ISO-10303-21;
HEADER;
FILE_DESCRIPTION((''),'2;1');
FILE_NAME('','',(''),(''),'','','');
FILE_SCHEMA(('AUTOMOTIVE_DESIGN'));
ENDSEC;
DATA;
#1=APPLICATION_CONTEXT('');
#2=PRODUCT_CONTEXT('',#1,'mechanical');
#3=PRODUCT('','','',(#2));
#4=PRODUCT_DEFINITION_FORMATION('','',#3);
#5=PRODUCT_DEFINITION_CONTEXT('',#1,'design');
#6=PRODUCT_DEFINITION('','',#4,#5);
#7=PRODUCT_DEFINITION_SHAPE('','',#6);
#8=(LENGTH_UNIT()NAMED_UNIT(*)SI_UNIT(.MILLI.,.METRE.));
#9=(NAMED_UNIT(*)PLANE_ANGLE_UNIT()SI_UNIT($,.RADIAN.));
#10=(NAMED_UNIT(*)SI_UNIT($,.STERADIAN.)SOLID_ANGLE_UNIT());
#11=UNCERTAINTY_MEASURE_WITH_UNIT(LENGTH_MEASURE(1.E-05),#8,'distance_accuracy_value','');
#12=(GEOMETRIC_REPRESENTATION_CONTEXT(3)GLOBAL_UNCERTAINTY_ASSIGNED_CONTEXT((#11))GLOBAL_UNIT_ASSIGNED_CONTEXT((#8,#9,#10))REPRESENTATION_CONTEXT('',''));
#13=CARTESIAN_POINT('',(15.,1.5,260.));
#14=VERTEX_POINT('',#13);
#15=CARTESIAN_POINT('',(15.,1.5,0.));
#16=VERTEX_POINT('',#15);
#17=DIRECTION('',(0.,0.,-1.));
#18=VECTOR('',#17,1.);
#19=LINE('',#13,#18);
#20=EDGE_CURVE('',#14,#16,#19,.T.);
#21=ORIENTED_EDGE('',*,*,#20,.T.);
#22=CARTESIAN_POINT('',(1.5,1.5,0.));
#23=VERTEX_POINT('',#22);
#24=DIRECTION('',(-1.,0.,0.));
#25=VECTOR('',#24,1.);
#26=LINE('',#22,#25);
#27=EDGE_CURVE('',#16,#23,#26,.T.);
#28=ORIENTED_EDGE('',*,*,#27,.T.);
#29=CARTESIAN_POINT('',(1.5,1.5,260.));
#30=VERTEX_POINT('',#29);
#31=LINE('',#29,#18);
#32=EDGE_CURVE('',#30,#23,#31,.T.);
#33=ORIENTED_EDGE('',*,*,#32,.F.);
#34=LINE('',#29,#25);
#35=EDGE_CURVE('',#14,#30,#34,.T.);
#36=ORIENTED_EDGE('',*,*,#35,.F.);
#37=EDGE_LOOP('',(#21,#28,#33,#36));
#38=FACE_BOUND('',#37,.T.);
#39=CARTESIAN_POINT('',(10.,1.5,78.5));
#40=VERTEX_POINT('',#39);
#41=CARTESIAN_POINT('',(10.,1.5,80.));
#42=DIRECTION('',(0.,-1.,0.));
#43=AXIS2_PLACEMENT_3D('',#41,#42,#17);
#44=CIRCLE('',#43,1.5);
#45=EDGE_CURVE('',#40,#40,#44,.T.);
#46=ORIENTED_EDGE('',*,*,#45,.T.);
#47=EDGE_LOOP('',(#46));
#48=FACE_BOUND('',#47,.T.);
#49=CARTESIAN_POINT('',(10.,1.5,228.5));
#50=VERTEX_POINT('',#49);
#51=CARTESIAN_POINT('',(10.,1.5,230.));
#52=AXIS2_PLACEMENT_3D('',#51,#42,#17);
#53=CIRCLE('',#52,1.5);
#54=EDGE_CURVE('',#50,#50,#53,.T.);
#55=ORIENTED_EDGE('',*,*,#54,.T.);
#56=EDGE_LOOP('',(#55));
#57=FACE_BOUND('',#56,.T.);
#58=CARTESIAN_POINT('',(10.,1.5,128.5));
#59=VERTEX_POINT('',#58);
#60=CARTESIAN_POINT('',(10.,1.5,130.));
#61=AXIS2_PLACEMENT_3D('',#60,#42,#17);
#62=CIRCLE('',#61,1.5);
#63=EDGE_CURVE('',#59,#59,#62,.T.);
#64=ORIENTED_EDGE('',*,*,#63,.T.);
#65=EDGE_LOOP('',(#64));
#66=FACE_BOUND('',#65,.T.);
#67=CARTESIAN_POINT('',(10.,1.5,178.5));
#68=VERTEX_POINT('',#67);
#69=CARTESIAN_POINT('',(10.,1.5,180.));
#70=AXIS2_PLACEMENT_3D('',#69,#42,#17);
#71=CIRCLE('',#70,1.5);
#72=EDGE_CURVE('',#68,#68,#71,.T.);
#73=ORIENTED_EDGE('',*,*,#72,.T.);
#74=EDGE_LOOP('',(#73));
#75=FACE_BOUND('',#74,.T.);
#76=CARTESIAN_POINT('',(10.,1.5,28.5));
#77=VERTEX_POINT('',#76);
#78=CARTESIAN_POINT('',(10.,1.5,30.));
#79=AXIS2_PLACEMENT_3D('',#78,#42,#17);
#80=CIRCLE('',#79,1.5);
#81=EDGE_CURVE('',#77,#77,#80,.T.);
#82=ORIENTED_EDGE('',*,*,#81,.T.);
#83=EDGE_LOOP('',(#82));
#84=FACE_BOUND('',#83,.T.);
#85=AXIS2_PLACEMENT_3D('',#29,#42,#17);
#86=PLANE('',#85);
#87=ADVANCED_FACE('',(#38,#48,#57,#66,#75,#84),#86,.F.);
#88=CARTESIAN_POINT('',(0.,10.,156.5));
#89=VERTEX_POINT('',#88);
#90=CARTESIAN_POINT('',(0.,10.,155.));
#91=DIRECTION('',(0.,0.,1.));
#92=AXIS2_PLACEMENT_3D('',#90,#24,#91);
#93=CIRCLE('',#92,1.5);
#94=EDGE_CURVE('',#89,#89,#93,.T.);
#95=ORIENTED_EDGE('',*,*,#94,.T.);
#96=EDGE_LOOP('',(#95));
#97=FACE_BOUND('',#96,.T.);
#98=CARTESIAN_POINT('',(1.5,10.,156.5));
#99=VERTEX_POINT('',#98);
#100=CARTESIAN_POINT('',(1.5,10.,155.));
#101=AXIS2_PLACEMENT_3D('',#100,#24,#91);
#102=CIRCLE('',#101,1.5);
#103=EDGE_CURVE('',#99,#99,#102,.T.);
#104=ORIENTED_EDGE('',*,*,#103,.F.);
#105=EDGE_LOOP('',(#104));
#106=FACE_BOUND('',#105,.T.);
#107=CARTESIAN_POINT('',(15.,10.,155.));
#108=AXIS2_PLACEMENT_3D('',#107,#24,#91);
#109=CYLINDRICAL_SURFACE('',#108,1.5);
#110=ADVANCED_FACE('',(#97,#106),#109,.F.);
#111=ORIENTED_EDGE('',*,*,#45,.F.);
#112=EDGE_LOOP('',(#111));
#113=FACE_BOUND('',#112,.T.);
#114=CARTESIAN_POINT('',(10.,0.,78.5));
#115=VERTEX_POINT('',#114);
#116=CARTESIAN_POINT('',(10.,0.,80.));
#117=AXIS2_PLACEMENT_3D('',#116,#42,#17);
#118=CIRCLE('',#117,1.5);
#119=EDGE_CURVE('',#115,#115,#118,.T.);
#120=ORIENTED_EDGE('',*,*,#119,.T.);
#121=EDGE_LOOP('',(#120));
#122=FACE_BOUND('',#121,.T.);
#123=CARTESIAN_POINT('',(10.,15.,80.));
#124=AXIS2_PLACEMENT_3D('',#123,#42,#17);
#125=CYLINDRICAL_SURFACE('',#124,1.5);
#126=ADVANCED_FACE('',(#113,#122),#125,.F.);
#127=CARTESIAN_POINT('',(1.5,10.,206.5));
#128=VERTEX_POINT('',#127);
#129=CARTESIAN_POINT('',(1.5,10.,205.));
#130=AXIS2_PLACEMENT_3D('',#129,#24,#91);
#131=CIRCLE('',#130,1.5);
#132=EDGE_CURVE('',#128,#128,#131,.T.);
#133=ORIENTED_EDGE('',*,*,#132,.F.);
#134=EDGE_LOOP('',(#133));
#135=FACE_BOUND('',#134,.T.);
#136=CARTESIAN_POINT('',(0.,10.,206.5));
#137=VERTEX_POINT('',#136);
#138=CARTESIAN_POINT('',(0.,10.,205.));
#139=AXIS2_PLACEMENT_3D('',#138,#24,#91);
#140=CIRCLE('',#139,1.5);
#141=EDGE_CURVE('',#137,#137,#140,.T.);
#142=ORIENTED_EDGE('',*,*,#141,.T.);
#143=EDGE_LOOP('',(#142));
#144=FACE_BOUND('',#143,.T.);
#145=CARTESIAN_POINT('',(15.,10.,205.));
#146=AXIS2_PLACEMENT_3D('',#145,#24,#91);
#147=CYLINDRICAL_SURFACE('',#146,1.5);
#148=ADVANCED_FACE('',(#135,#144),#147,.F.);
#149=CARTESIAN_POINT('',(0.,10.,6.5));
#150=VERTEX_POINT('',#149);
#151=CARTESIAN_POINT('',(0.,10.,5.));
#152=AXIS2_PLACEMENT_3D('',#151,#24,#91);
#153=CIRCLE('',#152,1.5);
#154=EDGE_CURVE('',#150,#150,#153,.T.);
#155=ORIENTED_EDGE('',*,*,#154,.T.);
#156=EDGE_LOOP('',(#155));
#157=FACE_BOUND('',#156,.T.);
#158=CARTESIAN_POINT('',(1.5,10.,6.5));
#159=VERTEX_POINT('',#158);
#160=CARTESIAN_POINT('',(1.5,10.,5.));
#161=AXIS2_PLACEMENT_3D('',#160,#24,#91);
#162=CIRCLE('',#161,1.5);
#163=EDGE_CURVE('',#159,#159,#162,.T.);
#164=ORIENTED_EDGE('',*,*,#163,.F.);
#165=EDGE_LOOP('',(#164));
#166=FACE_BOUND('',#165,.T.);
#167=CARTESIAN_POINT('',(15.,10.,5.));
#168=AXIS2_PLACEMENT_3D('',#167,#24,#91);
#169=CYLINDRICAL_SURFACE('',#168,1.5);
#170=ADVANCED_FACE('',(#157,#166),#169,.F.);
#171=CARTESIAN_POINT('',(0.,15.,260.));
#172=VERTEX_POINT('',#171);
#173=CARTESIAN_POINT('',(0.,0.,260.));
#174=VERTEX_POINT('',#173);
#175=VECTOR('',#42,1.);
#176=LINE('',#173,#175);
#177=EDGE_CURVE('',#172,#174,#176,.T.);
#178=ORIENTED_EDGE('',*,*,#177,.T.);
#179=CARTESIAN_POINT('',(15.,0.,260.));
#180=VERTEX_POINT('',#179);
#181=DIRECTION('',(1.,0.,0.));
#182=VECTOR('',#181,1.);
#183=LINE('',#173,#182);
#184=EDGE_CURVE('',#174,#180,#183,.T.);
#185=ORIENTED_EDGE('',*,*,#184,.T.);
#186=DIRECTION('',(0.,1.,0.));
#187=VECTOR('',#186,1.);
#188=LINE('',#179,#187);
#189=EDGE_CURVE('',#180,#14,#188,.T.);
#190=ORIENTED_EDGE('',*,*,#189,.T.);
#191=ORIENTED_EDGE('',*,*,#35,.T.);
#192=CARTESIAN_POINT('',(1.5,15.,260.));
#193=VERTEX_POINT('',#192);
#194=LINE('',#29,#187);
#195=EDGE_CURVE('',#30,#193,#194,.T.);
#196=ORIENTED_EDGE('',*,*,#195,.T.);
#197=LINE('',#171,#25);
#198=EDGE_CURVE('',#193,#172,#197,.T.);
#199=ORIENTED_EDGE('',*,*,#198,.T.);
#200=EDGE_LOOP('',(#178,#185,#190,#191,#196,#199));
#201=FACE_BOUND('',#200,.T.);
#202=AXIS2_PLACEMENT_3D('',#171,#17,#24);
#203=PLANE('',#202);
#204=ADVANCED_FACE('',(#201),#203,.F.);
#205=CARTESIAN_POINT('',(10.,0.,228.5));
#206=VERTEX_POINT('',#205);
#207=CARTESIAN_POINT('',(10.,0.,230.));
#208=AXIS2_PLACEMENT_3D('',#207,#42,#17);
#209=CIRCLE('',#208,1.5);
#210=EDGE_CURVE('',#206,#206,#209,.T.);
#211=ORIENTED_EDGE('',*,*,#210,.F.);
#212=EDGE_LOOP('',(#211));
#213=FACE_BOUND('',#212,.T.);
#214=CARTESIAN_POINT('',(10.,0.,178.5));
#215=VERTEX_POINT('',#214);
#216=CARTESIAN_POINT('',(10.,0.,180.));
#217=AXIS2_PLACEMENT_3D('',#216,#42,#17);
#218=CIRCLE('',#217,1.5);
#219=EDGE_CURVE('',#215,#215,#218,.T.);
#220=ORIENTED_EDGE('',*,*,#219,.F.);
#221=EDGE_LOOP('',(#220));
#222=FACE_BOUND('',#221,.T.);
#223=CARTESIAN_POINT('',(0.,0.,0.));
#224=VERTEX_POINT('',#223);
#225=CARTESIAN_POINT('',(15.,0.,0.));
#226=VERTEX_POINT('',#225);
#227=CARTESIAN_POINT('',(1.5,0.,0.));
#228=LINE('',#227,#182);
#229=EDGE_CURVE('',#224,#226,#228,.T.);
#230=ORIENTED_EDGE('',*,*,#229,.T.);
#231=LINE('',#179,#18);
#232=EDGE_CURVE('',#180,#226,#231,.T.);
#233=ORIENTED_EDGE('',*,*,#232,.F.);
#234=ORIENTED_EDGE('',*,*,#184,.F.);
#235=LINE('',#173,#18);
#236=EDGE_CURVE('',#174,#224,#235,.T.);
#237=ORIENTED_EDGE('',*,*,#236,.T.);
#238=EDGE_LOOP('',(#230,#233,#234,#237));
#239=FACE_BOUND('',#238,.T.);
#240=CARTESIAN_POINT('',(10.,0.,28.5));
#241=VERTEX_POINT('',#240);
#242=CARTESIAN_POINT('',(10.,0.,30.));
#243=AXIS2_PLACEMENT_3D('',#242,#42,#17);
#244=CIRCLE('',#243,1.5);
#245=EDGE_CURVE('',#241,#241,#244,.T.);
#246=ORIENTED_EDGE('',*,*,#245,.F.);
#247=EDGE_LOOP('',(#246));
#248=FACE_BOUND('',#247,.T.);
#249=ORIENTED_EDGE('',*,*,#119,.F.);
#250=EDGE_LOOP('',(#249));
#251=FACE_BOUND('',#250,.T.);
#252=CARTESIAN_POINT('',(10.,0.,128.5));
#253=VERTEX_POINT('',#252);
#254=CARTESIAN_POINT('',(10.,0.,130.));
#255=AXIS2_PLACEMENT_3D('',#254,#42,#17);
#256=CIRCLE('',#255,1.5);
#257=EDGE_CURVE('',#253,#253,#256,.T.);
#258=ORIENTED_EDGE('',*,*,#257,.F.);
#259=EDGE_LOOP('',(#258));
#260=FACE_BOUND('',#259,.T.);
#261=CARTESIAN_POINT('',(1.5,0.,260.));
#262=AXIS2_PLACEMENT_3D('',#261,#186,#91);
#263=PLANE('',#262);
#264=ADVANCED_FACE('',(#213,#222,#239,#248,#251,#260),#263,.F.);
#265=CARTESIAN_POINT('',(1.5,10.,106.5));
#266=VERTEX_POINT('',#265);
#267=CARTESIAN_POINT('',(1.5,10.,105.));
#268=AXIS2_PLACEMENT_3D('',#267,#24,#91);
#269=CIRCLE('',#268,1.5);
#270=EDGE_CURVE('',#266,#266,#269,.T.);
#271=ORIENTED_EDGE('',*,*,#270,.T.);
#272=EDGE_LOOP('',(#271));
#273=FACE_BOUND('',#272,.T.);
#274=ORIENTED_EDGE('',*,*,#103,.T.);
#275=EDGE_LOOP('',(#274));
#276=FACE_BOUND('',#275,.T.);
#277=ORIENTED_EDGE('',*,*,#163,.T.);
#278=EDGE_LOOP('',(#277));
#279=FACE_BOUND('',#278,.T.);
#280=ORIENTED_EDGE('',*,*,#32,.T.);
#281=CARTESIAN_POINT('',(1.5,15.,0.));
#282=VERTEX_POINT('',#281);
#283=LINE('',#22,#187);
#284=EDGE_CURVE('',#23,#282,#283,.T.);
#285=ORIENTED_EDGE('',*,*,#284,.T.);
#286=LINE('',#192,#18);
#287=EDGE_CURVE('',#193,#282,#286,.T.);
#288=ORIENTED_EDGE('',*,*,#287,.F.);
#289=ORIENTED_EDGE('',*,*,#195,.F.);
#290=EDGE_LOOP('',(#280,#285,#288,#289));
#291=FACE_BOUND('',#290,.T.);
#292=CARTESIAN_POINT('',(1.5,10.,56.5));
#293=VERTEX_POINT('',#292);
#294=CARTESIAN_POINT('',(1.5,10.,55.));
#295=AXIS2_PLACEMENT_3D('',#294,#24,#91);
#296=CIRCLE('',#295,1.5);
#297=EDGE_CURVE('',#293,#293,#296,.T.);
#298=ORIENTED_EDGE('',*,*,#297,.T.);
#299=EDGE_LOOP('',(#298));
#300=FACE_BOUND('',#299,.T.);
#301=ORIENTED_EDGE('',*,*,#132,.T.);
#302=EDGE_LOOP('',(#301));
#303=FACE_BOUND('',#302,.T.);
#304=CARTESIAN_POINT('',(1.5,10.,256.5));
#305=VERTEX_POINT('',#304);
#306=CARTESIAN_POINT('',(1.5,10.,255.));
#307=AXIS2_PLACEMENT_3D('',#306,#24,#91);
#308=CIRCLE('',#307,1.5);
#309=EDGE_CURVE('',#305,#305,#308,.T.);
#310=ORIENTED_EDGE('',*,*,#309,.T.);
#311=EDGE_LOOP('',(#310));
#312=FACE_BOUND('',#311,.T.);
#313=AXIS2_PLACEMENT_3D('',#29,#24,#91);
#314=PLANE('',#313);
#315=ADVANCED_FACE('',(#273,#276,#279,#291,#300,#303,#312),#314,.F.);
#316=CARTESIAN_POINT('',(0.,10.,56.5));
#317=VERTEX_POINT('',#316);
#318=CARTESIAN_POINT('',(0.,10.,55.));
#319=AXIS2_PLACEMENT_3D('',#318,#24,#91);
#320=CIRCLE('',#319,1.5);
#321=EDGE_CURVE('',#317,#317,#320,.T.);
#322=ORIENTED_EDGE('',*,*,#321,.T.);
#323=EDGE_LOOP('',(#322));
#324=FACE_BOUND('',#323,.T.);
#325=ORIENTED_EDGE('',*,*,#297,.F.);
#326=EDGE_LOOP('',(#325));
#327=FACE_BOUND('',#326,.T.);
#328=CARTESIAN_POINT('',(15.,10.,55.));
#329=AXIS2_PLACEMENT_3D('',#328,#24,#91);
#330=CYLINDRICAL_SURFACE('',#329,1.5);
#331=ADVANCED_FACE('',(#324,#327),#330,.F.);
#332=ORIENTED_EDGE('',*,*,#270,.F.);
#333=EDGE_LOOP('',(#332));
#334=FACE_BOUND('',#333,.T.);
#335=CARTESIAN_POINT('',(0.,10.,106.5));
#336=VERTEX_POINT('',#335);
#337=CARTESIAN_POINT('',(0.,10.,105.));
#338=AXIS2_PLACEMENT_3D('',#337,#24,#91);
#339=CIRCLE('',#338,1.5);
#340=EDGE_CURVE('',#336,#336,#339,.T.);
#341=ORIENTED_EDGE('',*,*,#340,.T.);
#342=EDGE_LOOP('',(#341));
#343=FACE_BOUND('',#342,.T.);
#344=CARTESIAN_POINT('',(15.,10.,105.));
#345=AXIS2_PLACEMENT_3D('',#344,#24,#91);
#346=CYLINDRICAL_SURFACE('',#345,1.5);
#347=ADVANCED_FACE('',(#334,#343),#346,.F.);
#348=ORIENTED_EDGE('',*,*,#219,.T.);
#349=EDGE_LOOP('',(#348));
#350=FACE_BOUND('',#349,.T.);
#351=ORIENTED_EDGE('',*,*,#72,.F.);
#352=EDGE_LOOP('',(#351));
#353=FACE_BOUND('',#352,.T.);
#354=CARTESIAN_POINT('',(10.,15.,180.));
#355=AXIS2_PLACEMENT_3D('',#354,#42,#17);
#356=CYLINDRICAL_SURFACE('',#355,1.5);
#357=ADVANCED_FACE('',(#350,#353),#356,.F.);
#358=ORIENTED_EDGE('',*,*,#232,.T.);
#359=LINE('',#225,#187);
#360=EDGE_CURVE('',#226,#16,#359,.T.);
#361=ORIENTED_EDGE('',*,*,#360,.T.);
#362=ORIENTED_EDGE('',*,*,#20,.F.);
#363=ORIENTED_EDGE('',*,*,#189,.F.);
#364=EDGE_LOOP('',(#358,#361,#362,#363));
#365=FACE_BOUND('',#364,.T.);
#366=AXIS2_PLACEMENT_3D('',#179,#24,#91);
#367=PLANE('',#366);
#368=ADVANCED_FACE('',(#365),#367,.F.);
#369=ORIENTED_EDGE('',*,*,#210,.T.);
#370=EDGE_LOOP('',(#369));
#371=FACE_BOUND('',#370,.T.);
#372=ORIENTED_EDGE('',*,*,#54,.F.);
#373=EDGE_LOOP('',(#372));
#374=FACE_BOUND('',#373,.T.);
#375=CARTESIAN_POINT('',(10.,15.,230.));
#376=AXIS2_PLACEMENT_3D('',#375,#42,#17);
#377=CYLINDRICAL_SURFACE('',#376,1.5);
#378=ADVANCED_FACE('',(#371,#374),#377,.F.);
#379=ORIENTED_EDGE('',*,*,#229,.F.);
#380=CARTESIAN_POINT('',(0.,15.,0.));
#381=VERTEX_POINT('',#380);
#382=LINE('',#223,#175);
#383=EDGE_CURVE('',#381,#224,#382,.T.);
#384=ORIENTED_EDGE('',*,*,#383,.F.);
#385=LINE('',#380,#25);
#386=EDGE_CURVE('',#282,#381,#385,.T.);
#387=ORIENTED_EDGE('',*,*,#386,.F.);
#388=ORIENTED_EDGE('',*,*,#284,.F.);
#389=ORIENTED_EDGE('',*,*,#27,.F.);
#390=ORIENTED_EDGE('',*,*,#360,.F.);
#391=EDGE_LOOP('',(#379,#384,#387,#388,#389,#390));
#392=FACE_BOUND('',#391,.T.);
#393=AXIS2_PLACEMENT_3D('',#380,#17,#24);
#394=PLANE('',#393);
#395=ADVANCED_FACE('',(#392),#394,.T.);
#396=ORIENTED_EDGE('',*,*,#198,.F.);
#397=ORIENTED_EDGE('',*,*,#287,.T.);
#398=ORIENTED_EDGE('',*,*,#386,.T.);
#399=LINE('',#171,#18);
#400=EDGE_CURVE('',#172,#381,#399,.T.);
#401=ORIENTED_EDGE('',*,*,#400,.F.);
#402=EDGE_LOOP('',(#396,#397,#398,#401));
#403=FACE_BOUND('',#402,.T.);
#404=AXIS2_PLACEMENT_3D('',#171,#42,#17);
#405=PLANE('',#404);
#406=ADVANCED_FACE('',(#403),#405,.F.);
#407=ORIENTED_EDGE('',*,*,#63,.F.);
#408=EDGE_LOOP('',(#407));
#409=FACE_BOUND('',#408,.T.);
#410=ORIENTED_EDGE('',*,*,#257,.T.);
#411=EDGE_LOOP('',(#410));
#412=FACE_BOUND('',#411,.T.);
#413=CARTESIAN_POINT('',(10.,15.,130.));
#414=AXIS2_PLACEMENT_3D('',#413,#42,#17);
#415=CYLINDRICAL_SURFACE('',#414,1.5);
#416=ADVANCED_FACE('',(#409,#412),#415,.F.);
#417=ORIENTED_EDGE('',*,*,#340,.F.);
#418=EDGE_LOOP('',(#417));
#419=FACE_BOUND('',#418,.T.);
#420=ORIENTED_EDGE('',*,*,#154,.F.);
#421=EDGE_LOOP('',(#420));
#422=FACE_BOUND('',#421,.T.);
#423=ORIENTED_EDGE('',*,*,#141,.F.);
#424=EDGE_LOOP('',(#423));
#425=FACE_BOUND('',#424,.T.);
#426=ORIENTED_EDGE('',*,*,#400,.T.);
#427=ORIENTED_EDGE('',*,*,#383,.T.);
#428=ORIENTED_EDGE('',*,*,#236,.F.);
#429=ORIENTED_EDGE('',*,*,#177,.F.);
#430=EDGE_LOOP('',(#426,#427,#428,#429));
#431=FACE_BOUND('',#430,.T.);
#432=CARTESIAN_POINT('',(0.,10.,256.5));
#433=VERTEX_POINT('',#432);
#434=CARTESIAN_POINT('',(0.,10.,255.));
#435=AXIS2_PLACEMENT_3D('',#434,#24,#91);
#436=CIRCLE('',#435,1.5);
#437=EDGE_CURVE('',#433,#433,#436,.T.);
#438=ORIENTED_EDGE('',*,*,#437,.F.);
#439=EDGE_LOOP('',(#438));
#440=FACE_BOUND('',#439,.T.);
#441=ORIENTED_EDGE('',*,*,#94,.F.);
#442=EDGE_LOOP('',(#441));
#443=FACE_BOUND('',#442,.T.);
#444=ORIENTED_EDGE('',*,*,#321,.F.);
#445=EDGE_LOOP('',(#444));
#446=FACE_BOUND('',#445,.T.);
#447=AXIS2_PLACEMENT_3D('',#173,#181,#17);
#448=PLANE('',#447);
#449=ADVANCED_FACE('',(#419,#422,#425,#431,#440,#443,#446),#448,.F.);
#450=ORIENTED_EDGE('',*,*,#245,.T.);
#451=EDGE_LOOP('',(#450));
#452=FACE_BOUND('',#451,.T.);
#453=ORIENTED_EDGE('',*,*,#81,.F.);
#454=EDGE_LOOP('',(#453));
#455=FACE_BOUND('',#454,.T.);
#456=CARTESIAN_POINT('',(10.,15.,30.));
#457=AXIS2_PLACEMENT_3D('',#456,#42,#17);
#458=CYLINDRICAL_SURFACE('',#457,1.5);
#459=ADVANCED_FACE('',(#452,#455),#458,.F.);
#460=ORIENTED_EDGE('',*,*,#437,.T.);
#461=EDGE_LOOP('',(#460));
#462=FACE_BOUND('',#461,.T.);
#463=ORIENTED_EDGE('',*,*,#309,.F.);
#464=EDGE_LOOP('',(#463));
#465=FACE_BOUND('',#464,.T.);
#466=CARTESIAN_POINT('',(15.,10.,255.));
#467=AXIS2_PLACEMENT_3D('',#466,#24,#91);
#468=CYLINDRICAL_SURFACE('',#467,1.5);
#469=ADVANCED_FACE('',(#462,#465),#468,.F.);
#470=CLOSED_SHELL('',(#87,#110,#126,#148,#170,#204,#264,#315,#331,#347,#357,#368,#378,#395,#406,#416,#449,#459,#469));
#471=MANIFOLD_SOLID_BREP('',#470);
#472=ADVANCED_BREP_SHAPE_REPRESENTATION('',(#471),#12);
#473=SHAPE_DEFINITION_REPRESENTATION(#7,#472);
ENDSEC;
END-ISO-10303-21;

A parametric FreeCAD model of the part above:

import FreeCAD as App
import Part
import Sketcher

V = App.Vector
Q = App.Units.Quantity


def add_polygon(sketch, points):
    """Adds a closed chain of lines whose ends are joined by coincident constraints."""
    first, n = sketch.GeometryCount, len(points)
    for a, b in zip(points, points[1:] + points[:1]):
        sketch.addGeometry(Part.LineSegment(App.Vector(*a, 0), App.Vector(*b, 0)), False)
    for i in range(n):
        sketch.addConstraint(Sketcher.Constraint("Coincident", first + i, 2, first + (i + 1) % n, 1))

doc = App.newDocument("Part")
body = doc.addObject("PartDesign::Body", "Body")

sketch1 = body.newObject("Sketcher::SketchObject", "Sketch")
sketch1.AttachmentSupport = (doc.getObject("XY_Plane"), [""])
sketch1.MapMode = "FlatFace"
add_polygon(sketch1, [(0, 0), (15, 0), (15, 1.5), (1.5, 1.5), (1.5, 15), (0, 15)])
sketch1.addConstraint([
    Sketcher.Constraint("Horizontal", 0),
    Sketcher.Constraint("Vertical", 1),
    Sketcher.Constraint("Horizontal", 2),
    Sketcher.Constraint("Vertical", 3),
    Sketcher.Constraint("Horizontal", 4),
    Sketcher.Constraint("Vertical", 5),
    Sketcher.Constraint("Coincident", 5, 2, -1, 1),
    Sketcher.Constraint("Equal", 4, 1),
    Sketcher.Constraint("Equal", 2, 3),
    Sketcher.Constraint("DistanceX", 0, 1, 0, 2, Q("15 mm")),
    Sketcher.Constraint("DistanceX", 2, 2, 2, 1, Q("13.5 mm")),
])
pad1 = body.newObject("PartDesign::Pad", "Pad")
pad1.Profile = sketch1
pad1.Length = 260

sketch2 = body.newObject("Sketcher::SketchObject", "Sketch001")
sketch2.AttachmentSupport = (doc.getObject("YZ_Plane"), [""])
sketch2.MapMode = "FlatFace"
sketch2.addGeometry(Part.Circle(V(10, 5, 0), V(0, 0, 1), 1.5), False)
sketch2.addConstraint([
    Sketcher.Constraint("Diameter", 0, Q("3 mm")),
    Sketcher.Constraint("DistanceX", -1, 1, 0, 3, Q("10 mm")),
    Sketcher.Constraint("DistanceY", -1, 1, 0, 3, Q("5 mm")),
])
pocket1 = body.newObject("PartDesign::Pocket", "Pocket")
pocket1.Profile = sketch2
pocket1.Type = "ThroughAll"
pocket1.Reversed = True
doc.recompute()

linearpattern = body.newObject("PartDesign::LinearPattern", "LinearPattern")
linearpattern.Originals = [pocket1]
linearpattern.Direction = (doc.getObject("Z_Axis"), [""])
linearpattern.Mode = "offset"
linearpattern.Offset = 50
linearpattern.Occurrences = 6
body.Tip = linearpattern

sketch3 = body.newObject("Sketcher::SketchObject", "Sketch002")
sketch3.AttachmentSupport = (doc.getObject("XZ_Plane"), [""])
sketch3.MapMode = "FlatFace"
sketch3.addGeometry(Part.Circle(V(10, 30, 0), V(0, 0, 1), 1.5), False)
sketch3.addConstraint([
    Sketcher.Constraint("Diameter", 0, Q("3 mm")),
    Sketcher.Constraint("DistanceX", -1, 1, 0, 3, Q("10 mm")),
    Sketcher.Constraint("DistanceY", -1, 1, 0, 3, Q("30 mm")),
])
pocket2 = body.newObject("PartDesign::Pocket", "Pocket001")
pocket2.Profile = sketch3
pocket2.Type = "ThroughAll"
doc.recompute()

linearpattern2 = body.newObject("PartDesign::LinearPattern", "LinearPattern001")
linearpattern2.Originals = [pocket2]
linearpattern2.Direction = (doc.getObject("Z_Axis"), [""])
linearpattern2.Mode = "offset"
linearpattern2.Offset = 50
linearpattern2.Occurrences = 5
body.Tip = linearpattern2

doc.recompute()
